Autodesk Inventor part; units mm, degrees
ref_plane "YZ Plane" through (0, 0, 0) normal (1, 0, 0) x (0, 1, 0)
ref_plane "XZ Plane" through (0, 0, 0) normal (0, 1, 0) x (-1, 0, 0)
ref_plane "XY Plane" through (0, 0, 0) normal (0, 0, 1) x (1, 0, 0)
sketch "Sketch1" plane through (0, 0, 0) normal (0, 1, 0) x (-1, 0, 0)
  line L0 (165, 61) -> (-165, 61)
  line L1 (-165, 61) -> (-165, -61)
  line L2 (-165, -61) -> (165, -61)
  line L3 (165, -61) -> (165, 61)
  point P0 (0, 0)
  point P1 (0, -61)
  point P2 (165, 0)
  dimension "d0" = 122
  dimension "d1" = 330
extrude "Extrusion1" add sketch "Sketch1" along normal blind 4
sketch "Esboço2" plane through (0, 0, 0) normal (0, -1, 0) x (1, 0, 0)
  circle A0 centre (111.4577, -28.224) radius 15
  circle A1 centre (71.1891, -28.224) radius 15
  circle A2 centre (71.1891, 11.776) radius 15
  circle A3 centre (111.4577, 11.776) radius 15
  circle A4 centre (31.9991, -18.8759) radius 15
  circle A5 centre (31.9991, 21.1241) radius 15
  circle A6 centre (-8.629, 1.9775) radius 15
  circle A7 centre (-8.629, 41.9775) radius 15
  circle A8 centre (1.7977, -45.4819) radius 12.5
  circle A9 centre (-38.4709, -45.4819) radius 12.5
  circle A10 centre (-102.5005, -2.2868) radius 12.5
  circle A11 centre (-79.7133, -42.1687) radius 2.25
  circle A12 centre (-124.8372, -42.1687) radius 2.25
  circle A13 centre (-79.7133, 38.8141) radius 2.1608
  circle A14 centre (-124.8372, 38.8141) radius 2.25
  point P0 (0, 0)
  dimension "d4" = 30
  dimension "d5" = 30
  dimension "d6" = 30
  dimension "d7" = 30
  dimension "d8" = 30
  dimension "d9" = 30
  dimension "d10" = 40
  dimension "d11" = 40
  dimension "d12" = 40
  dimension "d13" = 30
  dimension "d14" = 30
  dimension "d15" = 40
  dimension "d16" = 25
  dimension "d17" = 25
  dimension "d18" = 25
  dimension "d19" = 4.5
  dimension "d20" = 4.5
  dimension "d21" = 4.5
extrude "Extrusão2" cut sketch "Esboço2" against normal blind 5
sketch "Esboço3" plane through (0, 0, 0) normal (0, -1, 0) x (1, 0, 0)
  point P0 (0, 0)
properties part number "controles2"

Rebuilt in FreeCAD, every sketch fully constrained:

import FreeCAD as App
import Part
import Sketcher
from FreeCAD import Vector


def add_polygon(sketch, points):
    """Adds a closed chain of lines whose ends are joined by coincident constraints."""
    first, n = sketch.GeometryCount, len(points)
    for a, b in zip(points, points[1:] + points[:1]):
        sketch.addGeometry(Part.LineSegment(App.Vector(*a, 0), App.Vector(*b, 0)), False)
    for i in range(n):
        sketch.addConstraint(Sketcher.Constraint("Coincident", first + i, 2, first + (i + 1) % n, 1))

doc = App.newDocument("Part")
body = doc.addObject("PartDesign::Body", "Body")

sketch1 = body.newObject("Sketcher::SketchObject", "Sketch")
sketch1.AttachmentSupport = (doc.getObject("XZ_Plane"), [""])
sketch1.MapMode = "FlatFace"
add_polygon(sketch1, [(-165, -61), (-165, 61), (165, 61), (165, -61)])
sketch1.addConstraint(Sketcher.Constraint("Vertical", 0))
sketch1.addConstraint(Sketcher.Constraint("Horizontal", 1))
sketch1.addConstraint(Sketcher.Constraint("Vertical", 2))
sketch1.addConstraint(Sketcher.Constraint("Horizontal", 3))
sketch1.addConstraint(Sketcher.Constraint("Symmetric", 0, 2, 2, 2, -1, 1))
sketch1.addConstraint(Sketcher.Constraint("DistanceX", 1, 1, 1, 2, 330.0))
sketch1.addConstraint(Sketcher.Constraint("DistanceY", 0, 1, 0, 2, 122.0))
pad1 = body.newObject("PartDesign::Pad", "Pad")
pad1.Profile = sketch1
pad1.Length = 4
pad1.Reversed = True

sketch2 = body.newObject("Sketcher::SketchObject", "Sketch001")
sketch2.AttachmentSupport = (doc.getObject("XZ_Plane"), [""])
sketch2.MapMode = "FlatFace"
sketch2.addGeometry(Part.Circle(Vector(111.5, -28.2, 0), Vector(0, 0, 1), 15), False)
sketch2.addGeometry(Part.Circle(Vector(71.2, -28.2, 0), Vector(0, 0, 1), 15), False)
sketch2.addGeometry(Part.Circle(Vector(71.2, 11.8, 0), Vector(0, 0, 1), 15), False)
sketch2.addGeometry(Part.Circle(Vector(111.5, 11.8, 0), Vector(0, 0, 1), 15), False)
sketch2.addGeometry(Part.Circle(Vector(32, -18.9, 0), Vector(0, 0, 1), 15), False)
sketch2.addGeometry(Part.Circle(Vector(32, 21.1, 0), Vector(0, 0, 1), 15), False)
sketch2.addGeometry(Part.Circle(Vector(-8.6, 2, 0), Vector(0, 0, 1), 15), False)
sketch2.addGeometry(Part.Circle(Vector(-8.6, 42, 0), Vector(0, 0, 1), 15), False)
sketch2.addGeometry(Part.Circle(Vector(1.8, -45.5, 0), Vector(0, 0, 1), 12.5), False)
sketch2.addGeometry(Part.Circle(Vector(-38.5, -45.5, 0), Vector(0, 0, 1), 12.5), False)
sketch2.addGeometry(Part.Circle(Vector(-102.5, -2.3, 0), Vector(0, 0, 1), 12.5), False)
sketch2.addGeometry(Part.Circle(Vector(-79.7, -42.2, 0), Vector(0, 0, 1), 2.2), False)
sketch2.addGeometry(Part.Circle(Vector(-124.8, -42.2, 0), Vector(0, 0, 1), 2.2), False)
sketch2.addGeometry(Part.Circle(Vector(-79.7, 38.8, 0), Vector(0, 0, 1), 2.2), False)
sketch2.addGeometry(Part.Circle(Vector(-124.8, 38.8, 0), Vector(0, 0, 1), 2.2), False)
sketch2.addConstraint(Sketcher.Constraint("Equal", 0, 1))
sketch2.addConstraint(Sketcher.Constraint("Equal", 1, 2))
sketch2.addConstraint(Sketcher.Constraint("Equal", 2, 3))
sketch2.addConstraint(Sketcher.Constraint("Equal", 3, 4))
sketch2.addConstraint(Sketcher.Constraint("Equal", 4, 5))
sketch2.addConstraint(Sketcher.Constraint("Equal", 5, 6))
sketch2.addConstraint(Sketcher.Constraint("Equal", 6, 7))
sketch2.addConstraint(Sketcher.Constraint("Equal", 8, 9))
sketch2.addConstraint(Sketcher.Constraint("Equal", 9, 10))
sketch2.addConstraint(Sketcher.Constraint("Equal", 11, 12))
sketch2.addConstraint(Sketcher.Constraint("Equal", 12, 14))
sketch2.addConstraint(Sketcher.Constraint("Horizontal", 0, 3, 1, 3))
sketch2.addConstraint(Sketcher.Constraint("Horizontal", 2, 3, 3, 3))
sketch2.addConstraint(Sketcher.Constraint("Horizontal", 8, 3, 9, 3))
sketch2.addConstraint(Sketcher.Constraint("Horizontal", 11, 3, 12, 3))
sketch2.addConstraint(Sketcher.Constraint("Horizontal", 13, 3, 14, 3))
sketch2.addConstraint(Sketcher.Constraint("Vertical", 1, 3, 2, 3))
sketch2.addConstraint(Sketcher.Constraint("Vertical", 0, 3, 3, 3))
sketch2.addConstraint(Sketcher.Constraint("Vertical", 4, 3, 5, 3))
sketch2.addConstraint(Sketcher.Constraint("Vertical", 6, 3, 7, 3))
sketch2.addConstraint(Sketcher.Constraint("Vertical", 11, 3, 13, 3))
sketch2.addConstraint(Sketcher.Constraint("Vertical", 12, 3, 14, 3))
sketch2.addConstraint(Sketcher.Constraint("Diameter", 0, 30.0))
sketch2.addConstraint(Sketcher.Constraint("Diameter", 8, 25.0))
sketch2.addConstraint(Sketcher.Constraint("Diameter", 11, 4.5))
sketch2.addConstraint(Sketcher.Constraint("DistanceY", 1, 3, 2, 3, 40.0))
sketch2.addConstraint(Sketcher.Constraint("DistanceY", 4, 3, 5, 3, 40.0))
sketch2.addConstraint(Sketcher.Constraint("DistanceY", 6, 3, 7, 3, 40.0))
sketch2.addConstraint(Sketcher.Constraint("Diameter", 13, 4.3216))
sketch2.addConstraint(Sketcher.Constraint("DistanceX", 4, 3, 1, 3, 39.19))
sketch2.addConstraint(Sketcher.Constraint("DistanceX", 9, 3, 4, 3, 70.47))
sketch2.addConstraint(Sketcher.Constraint("DistanceY", 0, 3, -1, 1, 28.224))
sketch2.addConstraint(Sketcher.Constraint("DistanceX", -1, 1, 1, 3, 71.189))
sketch2.addConstraint(Sketcher.Constraint("DistanceY", 4, 3, -1, 1, 18.876))
sketch2.addConstraint(Sketcher.Constraint("DistanceX", 6, 3, -1, 1, 8.629))
sketch2.addConstraint(Sketcher.Constraint("DistanceY", 8, 3, -1, 1, 45.482))
sketch2.addConstraint(Sketcher.Constraint("DistanceY", -1, 1, 13, 3, 38.814))
sketch2.addConstraint(Sketcher.Constraint("DistanceY", 9, 3, 10, 3, 43.195))
sketch2.addConstraint(Sketcher.Constraint("DistanceY", 11, 3, 10, 3, 39.882))
sketch2.addConstraint(Sketcher.Constraint("DistanceX", 11, 3, 8, 3, 81.511))
sketch2.addConstraint(Sketcher.Constraint("DistanceX", 12, 3, 11, 3, 45.124))
sketch2.addConstraint(Sketcher.Constraint("DistanceX", -1, 1, 0, 3, 111.4577))
sketch2.addConstraint(Sketcher.Constraint("DistanceY", -1, 1, 6, 3, 1.9775))
sketch2.addConstraint(Sketcher.Constraint("DistanceX", -1, 1, 8, 3, 1.7977))
sketch2.addConstraint(Sketcher.Constraint("DistanceX", 10, 3, -1, 1, 102.5005))
pocket1 = body.newObject("PartDesign::Pocket", "Pocket")
pocket1.Profile = sketch2
pocket1.Length = 5

doc.recompute()
